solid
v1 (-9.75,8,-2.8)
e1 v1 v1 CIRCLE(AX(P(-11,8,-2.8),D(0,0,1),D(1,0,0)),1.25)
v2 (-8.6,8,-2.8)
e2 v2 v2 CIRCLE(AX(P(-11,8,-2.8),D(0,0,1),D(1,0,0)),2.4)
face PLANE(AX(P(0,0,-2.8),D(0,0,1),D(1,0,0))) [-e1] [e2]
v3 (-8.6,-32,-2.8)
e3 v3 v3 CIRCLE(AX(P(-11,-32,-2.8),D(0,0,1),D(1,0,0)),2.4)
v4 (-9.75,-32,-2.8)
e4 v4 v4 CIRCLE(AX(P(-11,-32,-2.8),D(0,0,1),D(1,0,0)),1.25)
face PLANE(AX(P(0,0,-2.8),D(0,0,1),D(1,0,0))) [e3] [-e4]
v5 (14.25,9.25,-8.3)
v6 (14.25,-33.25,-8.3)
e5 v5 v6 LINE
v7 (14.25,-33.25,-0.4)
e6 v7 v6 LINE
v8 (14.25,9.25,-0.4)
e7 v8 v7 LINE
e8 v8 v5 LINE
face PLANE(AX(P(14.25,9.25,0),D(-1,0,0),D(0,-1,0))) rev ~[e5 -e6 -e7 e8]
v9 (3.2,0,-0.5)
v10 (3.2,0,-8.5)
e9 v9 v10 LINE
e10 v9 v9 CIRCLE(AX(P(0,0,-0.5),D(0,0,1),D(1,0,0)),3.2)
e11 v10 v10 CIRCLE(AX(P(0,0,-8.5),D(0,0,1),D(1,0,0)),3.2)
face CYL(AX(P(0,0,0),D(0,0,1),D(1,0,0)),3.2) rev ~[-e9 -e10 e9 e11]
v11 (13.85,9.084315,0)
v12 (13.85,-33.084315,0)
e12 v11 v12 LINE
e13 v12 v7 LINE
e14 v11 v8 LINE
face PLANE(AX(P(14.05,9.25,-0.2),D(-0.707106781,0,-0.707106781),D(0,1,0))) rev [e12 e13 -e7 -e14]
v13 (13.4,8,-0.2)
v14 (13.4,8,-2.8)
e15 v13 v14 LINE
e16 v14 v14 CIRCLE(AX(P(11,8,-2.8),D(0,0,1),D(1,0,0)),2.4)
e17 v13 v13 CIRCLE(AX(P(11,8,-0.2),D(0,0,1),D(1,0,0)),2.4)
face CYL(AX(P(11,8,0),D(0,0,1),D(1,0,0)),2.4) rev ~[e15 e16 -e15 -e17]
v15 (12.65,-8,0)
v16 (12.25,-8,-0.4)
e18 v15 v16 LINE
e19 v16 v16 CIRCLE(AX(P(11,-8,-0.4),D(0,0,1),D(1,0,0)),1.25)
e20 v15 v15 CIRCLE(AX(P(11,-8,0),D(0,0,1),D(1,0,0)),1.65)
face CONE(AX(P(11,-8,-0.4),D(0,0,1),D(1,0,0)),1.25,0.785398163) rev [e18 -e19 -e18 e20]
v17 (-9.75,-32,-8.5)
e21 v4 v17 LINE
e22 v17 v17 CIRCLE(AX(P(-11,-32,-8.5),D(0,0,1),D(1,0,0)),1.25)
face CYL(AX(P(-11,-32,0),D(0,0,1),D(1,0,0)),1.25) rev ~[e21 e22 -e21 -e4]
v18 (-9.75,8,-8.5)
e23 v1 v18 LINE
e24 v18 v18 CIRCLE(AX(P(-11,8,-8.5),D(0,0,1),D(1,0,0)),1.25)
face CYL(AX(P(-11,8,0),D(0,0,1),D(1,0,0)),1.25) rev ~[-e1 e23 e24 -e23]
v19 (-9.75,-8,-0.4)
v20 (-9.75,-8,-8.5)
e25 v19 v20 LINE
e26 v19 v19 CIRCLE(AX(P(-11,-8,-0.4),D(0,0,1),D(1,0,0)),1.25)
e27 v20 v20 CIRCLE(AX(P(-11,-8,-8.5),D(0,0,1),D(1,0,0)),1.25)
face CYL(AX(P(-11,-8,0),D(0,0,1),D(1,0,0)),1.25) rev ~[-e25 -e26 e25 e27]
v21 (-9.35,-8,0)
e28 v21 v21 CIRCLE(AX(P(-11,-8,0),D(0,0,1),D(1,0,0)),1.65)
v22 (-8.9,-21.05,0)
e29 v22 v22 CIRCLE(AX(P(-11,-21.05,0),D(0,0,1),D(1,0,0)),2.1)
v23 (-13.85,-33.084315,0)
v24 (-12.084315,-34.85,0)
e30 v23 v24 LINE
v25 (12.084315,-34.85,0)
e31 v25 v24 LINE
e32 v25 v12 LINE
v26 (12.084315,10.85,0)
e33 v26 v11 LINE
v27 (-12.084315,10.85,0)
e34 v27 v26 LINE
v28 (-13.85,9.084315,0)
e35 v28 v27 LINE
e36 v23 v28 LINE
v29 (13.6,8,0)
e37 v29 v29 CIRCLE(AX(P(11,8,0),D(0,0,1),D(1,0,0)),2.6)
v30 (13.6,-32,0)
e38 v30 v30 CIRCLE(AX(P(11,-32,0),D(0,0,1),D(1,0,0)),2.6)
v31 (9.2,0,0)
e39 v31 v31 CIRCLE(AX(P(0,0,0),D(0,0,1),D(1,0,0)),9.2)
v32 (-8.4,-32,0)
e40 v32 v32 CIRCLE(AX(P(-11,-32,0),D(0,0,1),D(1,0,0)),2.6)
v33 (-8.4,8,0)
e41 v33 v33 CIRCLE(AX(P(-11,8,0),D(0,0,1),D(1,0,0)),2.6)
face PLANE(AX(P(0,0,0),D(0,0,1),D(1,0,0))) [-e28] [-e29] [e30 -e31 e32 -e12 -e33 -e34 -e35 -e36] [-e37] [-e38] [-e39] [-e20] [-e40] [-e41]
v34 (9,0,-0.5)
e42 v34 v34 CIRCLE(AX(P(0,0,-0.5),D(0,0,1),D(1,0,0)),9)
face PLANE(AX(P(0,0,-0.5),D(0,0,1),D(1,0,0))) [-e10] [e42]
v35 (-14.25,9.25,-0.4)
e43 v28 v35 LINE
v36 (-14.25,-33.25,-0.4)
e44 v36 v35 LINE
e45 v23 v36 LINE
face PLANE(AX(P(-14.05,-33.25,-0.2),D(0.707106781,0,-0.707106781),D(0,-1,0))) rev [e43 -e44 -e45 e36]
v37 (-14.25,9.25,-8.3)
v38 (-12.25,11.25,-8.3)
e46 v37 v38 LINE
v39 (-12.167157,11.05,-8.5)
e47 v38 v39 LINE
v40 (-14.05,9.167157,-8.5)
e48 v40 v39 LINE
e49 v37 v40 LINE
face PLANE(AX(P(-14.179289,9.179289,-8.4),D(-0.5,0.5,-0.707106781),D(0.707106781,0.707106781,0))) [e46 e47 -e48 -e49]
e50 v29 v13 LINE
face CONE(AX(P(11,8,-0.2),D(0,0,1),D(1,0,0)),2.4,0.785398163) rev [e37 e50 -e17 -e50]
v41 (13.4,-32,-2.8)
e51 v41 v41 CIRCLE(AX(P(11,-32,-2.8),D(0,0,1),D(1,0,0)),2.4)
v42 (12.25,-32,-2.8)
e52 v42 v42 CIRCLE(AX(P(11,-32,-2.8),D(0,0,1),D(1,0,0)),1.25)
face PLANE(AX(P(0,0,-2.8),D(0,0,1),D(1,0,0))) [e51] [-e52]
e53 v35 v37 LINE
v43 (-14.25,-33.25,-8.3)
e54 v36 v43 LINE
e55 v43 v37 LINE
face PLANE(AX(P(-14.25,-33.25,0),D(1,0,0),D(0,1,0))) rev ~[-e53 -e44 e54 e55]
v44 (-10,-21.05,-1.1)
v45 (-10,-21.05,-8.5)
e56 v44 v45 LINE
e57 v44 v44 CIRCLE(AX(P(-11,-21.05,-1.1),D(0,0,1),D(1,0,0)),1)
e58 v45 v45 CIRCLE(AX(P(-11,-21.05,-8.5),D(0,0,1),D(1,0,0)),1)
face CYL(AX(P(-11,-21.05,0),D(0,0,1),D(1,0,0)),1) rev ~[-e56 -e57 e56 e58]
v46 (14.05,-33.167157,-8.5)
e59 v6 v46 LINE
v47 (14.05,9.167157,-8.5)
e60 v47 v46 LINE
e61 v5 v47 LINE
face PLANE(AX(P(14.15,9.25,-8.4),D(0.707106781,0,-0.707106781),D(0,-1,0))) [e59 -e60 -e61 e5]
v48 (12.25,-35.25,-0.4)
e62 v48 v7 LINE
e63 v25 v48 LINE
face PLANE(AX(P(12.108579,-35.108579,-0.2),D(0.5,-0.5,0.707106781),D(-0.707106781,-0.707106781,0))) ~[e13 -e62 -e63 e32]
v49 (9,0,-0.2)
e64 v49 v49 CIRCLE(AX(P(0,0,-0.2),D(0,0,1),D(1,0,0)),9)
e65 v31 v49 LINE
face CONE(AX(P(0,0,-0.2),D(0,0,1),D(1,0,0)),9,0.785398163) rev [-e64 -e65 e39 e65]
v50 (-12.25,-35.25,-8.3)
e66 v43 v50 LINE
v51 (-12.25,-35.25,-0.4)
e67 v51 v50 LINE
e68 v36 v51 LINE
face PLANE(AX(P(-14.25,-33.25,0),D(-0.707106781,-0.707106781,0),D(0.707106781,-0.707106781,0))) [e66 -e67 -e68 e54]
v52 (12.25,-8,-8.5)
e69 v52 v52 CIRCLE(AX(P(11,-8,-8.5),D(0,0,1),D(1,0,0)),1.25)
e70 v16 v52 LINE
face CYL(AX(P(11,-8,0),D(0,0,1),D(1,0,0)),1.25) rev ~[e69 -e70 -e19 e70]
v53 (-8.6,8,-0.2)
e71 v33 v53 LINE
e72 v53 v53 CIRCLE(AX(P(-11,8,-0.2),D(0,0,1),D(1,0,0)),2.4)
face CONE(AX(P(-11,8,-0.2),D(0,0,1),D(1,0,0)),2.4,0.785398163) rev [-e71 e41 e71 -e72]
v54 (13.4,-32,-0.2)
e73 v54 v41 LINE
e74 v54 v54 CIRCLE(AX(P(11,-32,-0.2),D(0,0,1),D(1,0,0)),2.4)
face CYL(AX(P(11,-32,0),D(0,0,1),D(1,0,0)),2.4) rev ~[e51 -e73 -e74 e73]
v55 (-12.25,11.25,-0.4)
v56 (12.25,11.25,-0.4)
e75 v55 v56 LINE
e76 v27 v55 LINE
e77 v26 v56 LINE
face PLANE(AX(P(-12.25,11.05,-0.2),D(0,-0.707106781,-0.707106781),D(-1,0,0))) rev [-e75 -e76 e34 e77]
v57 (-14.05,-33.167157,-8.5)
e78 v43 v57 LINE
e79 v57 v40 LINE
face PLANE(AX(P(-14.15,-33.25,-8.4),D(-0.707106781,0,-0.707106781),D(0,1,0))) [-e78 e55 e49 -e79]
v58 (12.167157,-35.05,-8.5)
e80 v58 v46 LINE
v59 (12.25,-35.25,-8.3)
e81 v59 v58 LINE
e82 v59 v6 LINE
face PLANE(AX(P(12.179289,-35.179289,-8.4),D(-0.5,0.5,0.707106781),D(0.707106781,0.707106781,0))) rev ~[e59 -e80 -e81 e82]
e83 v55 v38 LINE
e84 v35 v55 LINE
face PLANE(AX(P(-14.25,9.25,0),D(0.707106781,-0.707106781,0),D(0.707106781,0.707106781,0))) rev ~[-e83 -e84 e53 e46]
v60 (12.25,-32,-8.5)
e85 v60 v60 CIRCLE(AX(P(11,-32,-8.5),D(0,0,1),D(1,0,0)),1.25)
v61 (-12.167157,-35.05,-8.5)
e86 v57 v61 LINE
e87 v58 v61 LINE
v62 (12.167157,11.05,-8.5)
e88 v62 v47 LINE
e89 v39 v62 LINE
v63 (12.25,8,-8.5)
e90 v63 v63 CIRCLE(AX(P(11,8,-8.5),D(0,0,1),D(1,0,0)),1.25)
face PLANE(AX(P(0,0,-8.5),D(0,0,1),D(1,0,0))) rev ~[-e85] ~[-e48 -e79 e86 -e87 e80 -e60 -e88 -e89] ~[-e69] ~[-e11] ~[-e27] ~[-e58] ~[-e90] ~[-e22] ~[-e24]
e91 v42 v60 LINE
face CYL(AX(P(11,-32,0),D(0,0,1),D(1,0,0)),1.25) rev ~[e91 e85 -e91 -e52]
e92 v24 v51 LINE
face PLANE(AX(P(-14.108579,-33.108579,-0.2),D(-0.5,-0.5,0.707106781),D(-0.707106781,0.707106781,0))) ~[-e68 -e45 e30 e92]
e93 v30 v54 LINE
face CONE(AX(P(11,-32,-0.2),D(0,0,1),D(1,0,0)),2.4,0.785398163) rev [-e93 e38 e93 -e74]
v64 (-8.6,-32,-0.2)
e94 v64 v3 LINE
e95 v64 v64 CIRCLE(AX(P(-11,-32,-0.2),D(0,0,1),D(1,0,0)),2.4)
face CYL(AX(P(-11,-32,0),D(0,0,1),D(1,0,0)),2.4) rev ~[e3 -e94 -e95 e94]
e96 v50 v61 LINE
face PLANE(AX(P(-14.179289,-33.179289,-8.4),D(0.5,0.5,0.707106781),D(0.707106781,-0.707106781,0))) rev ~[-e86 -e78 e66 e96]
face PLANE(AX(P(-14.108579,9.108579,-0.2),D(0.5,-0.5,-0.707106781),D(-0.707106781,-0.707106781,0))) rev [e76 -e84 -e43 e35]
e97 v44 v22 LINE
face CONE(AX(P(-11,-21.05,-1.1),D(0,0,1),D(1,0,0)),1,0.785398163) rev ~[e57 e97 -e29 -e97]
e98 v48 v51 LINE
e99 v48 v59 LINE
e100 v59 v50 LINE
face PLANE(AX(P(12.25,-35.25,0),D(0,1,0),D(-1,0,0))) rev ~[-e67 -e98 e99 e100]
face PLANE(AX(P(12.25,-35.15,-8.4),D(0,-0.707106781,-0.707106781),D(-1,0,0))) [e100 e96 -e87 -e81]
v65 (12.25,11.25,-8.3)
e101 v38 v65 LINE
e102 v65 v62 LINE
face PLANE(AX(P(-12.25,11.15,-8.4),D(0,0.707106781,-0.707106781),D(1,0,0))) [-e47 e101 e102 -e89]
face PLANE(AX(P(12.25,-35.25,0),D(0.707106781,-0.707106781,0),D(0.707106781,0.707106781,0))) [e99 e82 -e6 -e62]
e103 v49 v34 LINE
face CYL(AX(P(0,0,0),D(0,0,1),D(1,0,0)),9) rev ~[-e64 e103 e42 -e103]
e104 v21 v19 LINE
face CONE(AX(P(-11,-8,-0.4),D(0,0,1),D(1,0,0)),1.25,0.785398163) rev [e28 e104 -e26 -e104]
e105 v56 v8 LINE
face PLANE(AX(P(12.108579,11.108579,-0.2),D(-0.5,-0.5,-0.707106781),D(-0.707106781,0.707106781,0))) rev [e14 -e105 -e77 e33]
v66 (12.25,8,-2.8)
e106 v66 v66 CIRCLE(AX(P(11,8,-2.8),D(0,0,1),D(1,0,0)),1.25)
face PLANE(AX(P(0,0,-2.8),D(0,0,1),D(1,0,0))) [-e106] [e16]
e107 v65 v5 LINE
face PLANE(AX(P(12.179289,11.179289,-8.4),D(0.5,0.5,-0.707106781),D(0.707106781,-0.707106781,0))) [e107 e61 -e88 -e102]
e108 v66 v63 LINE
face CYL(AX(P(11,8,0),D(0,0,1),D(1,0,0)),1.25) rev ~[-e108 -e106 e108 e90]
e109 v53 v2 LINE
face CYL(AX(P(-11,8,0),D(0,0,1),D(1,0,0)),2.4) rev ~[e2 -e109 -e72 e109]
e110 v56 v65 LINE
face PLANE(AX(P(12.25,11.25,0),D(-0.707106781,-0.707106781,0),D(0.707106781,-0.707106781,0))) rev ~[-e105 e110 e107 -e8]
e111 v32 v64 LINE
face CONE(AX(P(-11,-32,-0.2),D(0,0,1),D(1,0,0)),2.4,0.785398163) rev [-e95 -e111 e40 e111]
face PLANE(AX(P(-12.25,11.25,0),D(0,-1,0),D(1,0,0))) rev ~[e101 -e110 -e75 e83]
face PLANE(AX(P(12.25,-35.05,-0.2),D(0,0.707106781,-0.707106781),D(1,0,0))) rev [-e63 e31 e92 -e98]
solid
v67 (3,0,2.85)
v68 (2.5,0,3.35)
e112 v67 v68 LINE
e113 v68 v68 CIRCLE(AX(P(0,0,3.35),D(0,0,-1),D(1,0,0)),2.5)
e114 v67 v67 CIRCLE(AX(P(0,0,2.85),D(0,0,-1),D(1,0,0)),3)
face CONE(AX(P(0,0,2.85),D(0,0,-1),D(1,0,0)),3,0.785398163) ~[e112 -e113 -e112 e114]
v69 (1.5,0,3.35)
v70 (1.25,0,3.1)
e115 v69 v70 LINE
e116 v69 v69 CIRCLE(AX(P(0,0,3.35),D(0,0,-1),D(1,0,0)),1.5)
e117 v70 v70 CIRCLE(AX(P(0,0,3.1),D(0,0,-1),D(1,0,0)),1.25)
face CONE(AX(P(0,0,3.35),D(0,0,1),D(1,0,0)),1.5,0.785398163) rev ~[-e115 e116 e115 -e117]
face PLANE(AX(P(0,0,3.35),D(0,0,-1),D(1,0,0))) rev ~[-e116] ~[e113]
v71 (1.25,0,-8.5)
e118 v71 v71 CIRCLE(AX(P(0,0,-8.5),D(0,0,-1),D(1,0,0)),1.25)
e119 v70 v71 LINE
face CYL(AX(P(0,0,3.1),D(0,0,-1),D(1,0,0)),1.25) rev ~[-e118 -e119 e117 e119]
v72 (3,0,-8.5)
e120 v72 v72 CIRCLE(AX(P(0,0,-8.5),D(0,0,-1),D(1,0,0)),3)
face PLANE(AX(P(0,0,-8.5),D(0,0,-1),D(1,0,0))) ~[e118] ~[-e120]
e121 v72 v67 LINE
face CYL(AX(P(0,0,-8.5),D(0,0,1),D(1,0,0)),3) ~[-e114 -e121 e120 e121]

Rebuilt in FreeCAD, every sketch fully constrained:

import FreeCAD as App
import Part
import Sketcher
from FreeCAD import Vector
Q = App.Units.Quantity


def edges_at(feature, points):
    """Names of the edges that pass closest to the given points."""
    edges = feature.Shape.Edges
    near = lambda p: min(range(len(edges)), key=lambda i: edges[i].distToShape(Part.Vertex(*p))[0])
    return sorted({f"Edge{near(p) + 1}" for p in points})

doc = App.newDocument("Part")
body = doc.addObject("PartDesign::Body", "Body")
body.AllowCompound = True

# Sketch on XY plane
sketch1 = body.newObject("Sketcher::SketchObject", "Sketch")
sketch1.AttachmentSupport = (doc.getObject("XY_Plane"), [""])
sketch1.MapMode = "FlatFace"
sketch1.addGeometry([
    Part.LineSegment(Vector(12.2, 11.2, 0), Vector(-12.2, 11.2, 0)),  # 0
    Part.LineSegment(Vector(-12.2, 11.2, 0), Vector(-14.2, 9.2, 0)),  # 1
    Part.LineSegment(Vector(-14.2, 9.2, 0), Vector(-14.2, -33.2, 0)),  # 2
    Part.LineSegment(Vector(-14.2, -33.2, 0), Vector(-12.2, -35.2, 0)),  # 3
    Part.LineSegment(Vector(-12.2, -35.2, 0), Vector(12.2, -35.2, 0)),  # 4
    Part.LineSegment(Vector(12.2, -35.2, 0), Vector(14.2, -33.2, 0)),  # 5
    Part.LineSegment(Vector(14.2, -33.2, 0), Vector(14.2, 9.2, 0)),  # 6
    Part.LineSegment(Vector(14.2, 9.2, 0), Vector(12.2, 11.2, 0)),  # 7
    Part.Circle(Vector(-11, -32, 0), Vector(0, 0, 1), 1.2),  # 8
    Part.Circle(Vector(-11, -21.1, 0), Vector(0, 0, 1), 1),  # 9
    Part.Circle(Vector(11, -32, 0), Vector(0, 0, 1), 1.2),  # 10
    Part.Circle(Vector(-11, -8, 0), Vector(0, 0, 1), 1.2),  # 11
    Part.Circle(Vector(-11, 8, 0), Vector(0, 0, 1), 1.2),  # 12
    Part.Circle(Vector(11, -8, 0), Vector(0, 0, 1), 1.2),  # 13
    Part.Circle(Vector(0, 0, 0), Vector(0, 0, 1), 3.2),  # 14
    Part.Circle(Vector(11, 8, 0), Vector(0, 0, 1), 1.2),  # 15
], False)
sketch1.addConstraint([
    Sketcher.Constraint("Coincident", 0, 2, 1, 1),
    Sketcher.Constraint("Coincident", 1, 2, 2, 1),
    Sketcher.Constraint("Coincident", 2, 2, 3, 1),
    Sketcher.Constraint("Coincident", 3, 2, 4, 1),
    Sketcher.Constraint("Coincident", 4, 2, 5, 1),
    Sketcher.Constraint("Coincident", 5, 2, 6, 1),
    Sketcher.Constraint("Coincident", 6, 2, 7, 1),
    Sketcher.Constraint("Coincident", 7, 2, 0, 1),
    Sketcher.Constraint("Horizontal", 0),
    Sketcher.Constraint("Vertical", 2),
    Sketcher.Constraint("Horizontal", 4),
    Sketcher.Constraint("Vertical", 6),
    Sketcher.Constraint("Coincident", 14, 3, -1, 1),
    Sketcher.Constraint("Equal", 8, 10),
    Sketcher.Constraint("Equal", 10, 11),
    Sketcher.Constraint("Equal", 11, 12),
    Sketcher.Constraint("Equal", 12, 13),
    Sketcher.Constraint("Equal", 13, 15),
    Sketcher.Constraint("Symmetric", 12, 3, 13, 3, -1, 1),
    Sketcher.Constraint("Symmetric", 11, 3, 15, 3, -1, 1),
    Sketcher.Constraint("Symmetric", 8, 3, 10, 3, -2),
    Sketcher.Constraint("Symmetric", 11, 3, 13, 3, -2),
    Sketcher.Constraint("Symmetric", 2, 2, 5, 2, -2),
    Sketcher.Constraint("Perpendicular", 1, 3),
    Sketcher.Constraint("Perpendicular", 3, 5),
    Sketcher.Constraint("Perpendicular", 5, 7),
    Sketcher.Constraint("Horizontal", 1, 2, 6, 2),
    Sketcher.Constraint("Vertical", 8, 3, 9, 3),
    Sketcher.Constraint("Vertical", 9, 3, 11, 3),
    Sketcher.Constraint("Vertical", 0, 2, 3, 2),
    Sketcher.Constraint("Vertical", 4, 2, 7, 2),
    Sketcher.Constraint("Diameter", 9, Q("2 mm")),
    Sketcher.Constraint("Diameter", 8, Q("2.5 mm")),
    Sketcher.Constraint("Diameter", 14, Q("6.4 mm")),
    Sketcher.Constraint("DistanceY", 11, 3, -1, 1, Q("8 mm")),
    Sketcher.Constraint("DistanceX", 8, 3, 10, 3, Q("22 mm")),
    Sketcher.Constraint("DistanceY", 8, 3, 12, 3, Q("40 mm")),
    Sketcher.Constraint("DistanceX", 1, 2, 0, 2, Q("2 mm")),
    Sketcher.Constraint("DistanceY", 3, 2, 9, 3, Q("14.2 mm")),
    Sketcher.Constraint("DistanceY", -1, 1, 0, 2, Q("11.25 mm")),
    Sketcher.Constraint("DistanceX", 0, 2, 0, 1, Q("24.5 mm")),
    Sketcher.Constraint("DistanceY", 2, 2, 2, 1, Q("42.5 mm")),
])
pad1 = body.newObject("PartDesign::Pad", "Pad")
pad1.Profile = sketch1
pad1.Length = 8.5
pad1.Reversed = True
doc.recompute()

chamfer = body.newObject("PartDesign::Chamfer", "Chamfer")
chamfer.Base = (pad1, edges_at(pad1, [(-12, -21.05, 0)]))
chamfer.Size = 1.1

# Sketch on XY plane
sketch2 = body.newObject("Sketcher::SketchObject", "Sketch001")
sketch2.AttachmentSupport = (doc.getObject("XY_Plane"), [""])
sketch2.MapMode = "FlatFace"
sketch2.addGeometry([
    Part.Circle(Vector(-11, 8, 0), Vector(0, 0, 1), 2.4),
    Part.Circle(Vector(11, 8, 0), Vector(0, 0, 1), 2.4),
    Part.Circle(Vector(11, -32, 0), Vector(0, 0, 1), 2.4),
    Part.Circle(Vector(-11, -32, 0), Vector(0, 0, 1), 2.4),
], False)
sketch2.addConstraint([
    Sketcher.Constraint("Equal", 0, 1),
    Sketcher.Constraint("Equal", 1, 2),
    Sketcher.Constraint("Equal", 2, 3),
    Sketcher.Constraint("Symmetric", 0, 3, 1, 3, -2),
    Sketcher.Constraint("Symmetric", 2, 3, 3, 3, -2),
    Sketcher.Constraint("Vertical", 1, 3, 2, 3),
    Sketcher.Constraint("Diameter", 0, Q("4.8 mm")),
    Sketcher.Constraint("DistanceX", 0, 3, -1, 1, Q("11 mm")),
    Sketcher.Constraint("DistanceY", -1, 1, 0, 3, Q("8 mm")),
    Sketcher.Constraint("DistanceY", 2, 3, -1, 1, Q("32 mm")),
])
pocket1 = body.newObject("PartDesign::Pocket", "Pocket")
pocket1.Profile = sketch2
pocket1.Length = 2.8

# Sketch on XY plane
sketch3 = body.newObject("Sketcher::SketchObject", "Sketch002")
sketch3.AttachmentSupport = (doc.getObject("XY_Plane"), [""])
sketch3.MapMode = "FlatFace"
sketch3.addGeometry(Part.Circle(Vector(0, 0, 0), Vector(0, 0, 1), 9), False)
sketch3.addConstraint([
    Sketcher.Constraint("Coincident", 0, 3, -1, 1),
    Sketcher.Constraint("Diameter", 0, Q("18 mm")),
])
pocket2 = body.newObject("PartDesign::Pocket", "Pocket001")
pocket2.Profile = sketch3
pocket2.Length = 0.5
doc.recompute()

chamfer2 = body.newObject("PartDesign::Chamfer", "Chamfer001")
chamfer2.Base = (pocket2, edges_at(pocket2, [
    (-14.25, -12, 0),
    (-13.25, 10.25, 0),
    (0, 11.25, 0),
    (13.25, 10.25, 0),
    (14.25, -12, 0),
    (13.25, -34.25, 0),
    (0, -35.25, 0),
    (-13.25, -34.25, 0),
    (-12.25, -8, 0),
    (9.75, -8, 0),
]))
chamfer2.Size = 0.4
doc.recompute()

chamfer3 = body.newObject("PartDesign::Chamfer", "Chamfer002")
chamfer3.Base = (chamfer2, edges_at(chamfer2, [
    (-13.4, 8, 0),
    (8.6, 8, 0),
    (-9, 0, 0),
    (8.6, -32, 0),
    (-13.4, -32, 0),
    (-14.25, -12, -8.5),
    (-13.25, -34.25, -8.5),
    (0, -35.25, -8.5),
    (13.25, -34.25, -8.5),
    (14.25, -12, -8.5),
    (13.25, 10.25, -8.5),
    (0, 11.25, -8.5),
    (-13.25, 10.25, -8.5),
]))
chamfer3.Size = 0.2

# Sketch on XZ plane
sketch4 = body.newObject("Sketcher::SketchObject", "Sketch003")
sketch4.AttachmentSupport = (doc.getObject("XZ_Plane"), [""])
sketch4.MapMode = "FlatFace"
sketch4.addGeometry([
    Part.LineSegment(Vector(3, -8.5, 0), Vector(1.25, -8.5, 0)),  # 0
    Part.LineSegment(Vector(1.25, -8.5, 0), Vector(1.25, 3.1, 0)),  # 1
    Part.LineSegment(Vector(1.25, 3.1, 0), Vector(1.5, 3.35, 0)),  # 2
    Part.LineSegment(Vector(1.5, 3.35, 0), Vector(2.5, 3.35, 0)),  # 3
    Part.LineSegment(Vector(2.5, 3.35, 0), Vector(3, 2.85, 0)),  # 4
    Part.LineSegment(Vector(3, 2.85, 0), Vector(3, -8.5, 0)),  # 5
], False)
sketch4.addConstraint([
    Sketcher.Constraint("Coincident", 0, 2, 1, 1),
    Sketcher.Constraint("Coincident", 1, 2, 2, 1),
    Sketcher.Constraint("Coincident", 2, 2, 3, 1),
    Sketcher.Constraint("Coincident", 3, 2, 4, 1),
    Sketcher.Constraint("Coincident", 4, 2, 5, 1),
    Sketcher.Constraint("Coincident", 5, 2, 0, 1),
    Sketcher.Constraint("Horizontal", 0),
    Sketcher.Constraint("Vertical", 1),
    Sketcher.Constraint("Horizontal", 3),
    Sketcher.Constraint("Vertical", 5),
    Sketcher.Constraint("Perpendicular", 2, 4),
    Sketcher.Constraint("DistanceX", -1, 1, 3, 2, Q("2.5 mm")),
    Sketcher.Constraint("DistanceX", 3, 2, 4, 2, Q("0.5 mm")),
    Sketcher.Constraint("DistanceY", 4, 2, 3, 2, Q("0.5 mm")),
    Sketcher.Constraint("DistanceX", 3, 1, 3, 2, Q("1 mm")),
    Sketcher.Constraint("DistanceY", -1, 1, 2, 2, Q("3.35 mm")),
    Sketcher.Constraint("DistanceX", 1, 2, 2, 2, Q("0.25 mm")),
    Sketcher.Constraint("DistanceY", 1, 1, 1, 2, Q("11.6 mm")),
])
revolution = body.newObject("PartDesign::Revolution", "Revolution")
revolution.Profile = sketch4
revolution.ReferenceAxis = (sketch4, ["V_Axis"])
revolution.Angle = 360

doc.recompute()
